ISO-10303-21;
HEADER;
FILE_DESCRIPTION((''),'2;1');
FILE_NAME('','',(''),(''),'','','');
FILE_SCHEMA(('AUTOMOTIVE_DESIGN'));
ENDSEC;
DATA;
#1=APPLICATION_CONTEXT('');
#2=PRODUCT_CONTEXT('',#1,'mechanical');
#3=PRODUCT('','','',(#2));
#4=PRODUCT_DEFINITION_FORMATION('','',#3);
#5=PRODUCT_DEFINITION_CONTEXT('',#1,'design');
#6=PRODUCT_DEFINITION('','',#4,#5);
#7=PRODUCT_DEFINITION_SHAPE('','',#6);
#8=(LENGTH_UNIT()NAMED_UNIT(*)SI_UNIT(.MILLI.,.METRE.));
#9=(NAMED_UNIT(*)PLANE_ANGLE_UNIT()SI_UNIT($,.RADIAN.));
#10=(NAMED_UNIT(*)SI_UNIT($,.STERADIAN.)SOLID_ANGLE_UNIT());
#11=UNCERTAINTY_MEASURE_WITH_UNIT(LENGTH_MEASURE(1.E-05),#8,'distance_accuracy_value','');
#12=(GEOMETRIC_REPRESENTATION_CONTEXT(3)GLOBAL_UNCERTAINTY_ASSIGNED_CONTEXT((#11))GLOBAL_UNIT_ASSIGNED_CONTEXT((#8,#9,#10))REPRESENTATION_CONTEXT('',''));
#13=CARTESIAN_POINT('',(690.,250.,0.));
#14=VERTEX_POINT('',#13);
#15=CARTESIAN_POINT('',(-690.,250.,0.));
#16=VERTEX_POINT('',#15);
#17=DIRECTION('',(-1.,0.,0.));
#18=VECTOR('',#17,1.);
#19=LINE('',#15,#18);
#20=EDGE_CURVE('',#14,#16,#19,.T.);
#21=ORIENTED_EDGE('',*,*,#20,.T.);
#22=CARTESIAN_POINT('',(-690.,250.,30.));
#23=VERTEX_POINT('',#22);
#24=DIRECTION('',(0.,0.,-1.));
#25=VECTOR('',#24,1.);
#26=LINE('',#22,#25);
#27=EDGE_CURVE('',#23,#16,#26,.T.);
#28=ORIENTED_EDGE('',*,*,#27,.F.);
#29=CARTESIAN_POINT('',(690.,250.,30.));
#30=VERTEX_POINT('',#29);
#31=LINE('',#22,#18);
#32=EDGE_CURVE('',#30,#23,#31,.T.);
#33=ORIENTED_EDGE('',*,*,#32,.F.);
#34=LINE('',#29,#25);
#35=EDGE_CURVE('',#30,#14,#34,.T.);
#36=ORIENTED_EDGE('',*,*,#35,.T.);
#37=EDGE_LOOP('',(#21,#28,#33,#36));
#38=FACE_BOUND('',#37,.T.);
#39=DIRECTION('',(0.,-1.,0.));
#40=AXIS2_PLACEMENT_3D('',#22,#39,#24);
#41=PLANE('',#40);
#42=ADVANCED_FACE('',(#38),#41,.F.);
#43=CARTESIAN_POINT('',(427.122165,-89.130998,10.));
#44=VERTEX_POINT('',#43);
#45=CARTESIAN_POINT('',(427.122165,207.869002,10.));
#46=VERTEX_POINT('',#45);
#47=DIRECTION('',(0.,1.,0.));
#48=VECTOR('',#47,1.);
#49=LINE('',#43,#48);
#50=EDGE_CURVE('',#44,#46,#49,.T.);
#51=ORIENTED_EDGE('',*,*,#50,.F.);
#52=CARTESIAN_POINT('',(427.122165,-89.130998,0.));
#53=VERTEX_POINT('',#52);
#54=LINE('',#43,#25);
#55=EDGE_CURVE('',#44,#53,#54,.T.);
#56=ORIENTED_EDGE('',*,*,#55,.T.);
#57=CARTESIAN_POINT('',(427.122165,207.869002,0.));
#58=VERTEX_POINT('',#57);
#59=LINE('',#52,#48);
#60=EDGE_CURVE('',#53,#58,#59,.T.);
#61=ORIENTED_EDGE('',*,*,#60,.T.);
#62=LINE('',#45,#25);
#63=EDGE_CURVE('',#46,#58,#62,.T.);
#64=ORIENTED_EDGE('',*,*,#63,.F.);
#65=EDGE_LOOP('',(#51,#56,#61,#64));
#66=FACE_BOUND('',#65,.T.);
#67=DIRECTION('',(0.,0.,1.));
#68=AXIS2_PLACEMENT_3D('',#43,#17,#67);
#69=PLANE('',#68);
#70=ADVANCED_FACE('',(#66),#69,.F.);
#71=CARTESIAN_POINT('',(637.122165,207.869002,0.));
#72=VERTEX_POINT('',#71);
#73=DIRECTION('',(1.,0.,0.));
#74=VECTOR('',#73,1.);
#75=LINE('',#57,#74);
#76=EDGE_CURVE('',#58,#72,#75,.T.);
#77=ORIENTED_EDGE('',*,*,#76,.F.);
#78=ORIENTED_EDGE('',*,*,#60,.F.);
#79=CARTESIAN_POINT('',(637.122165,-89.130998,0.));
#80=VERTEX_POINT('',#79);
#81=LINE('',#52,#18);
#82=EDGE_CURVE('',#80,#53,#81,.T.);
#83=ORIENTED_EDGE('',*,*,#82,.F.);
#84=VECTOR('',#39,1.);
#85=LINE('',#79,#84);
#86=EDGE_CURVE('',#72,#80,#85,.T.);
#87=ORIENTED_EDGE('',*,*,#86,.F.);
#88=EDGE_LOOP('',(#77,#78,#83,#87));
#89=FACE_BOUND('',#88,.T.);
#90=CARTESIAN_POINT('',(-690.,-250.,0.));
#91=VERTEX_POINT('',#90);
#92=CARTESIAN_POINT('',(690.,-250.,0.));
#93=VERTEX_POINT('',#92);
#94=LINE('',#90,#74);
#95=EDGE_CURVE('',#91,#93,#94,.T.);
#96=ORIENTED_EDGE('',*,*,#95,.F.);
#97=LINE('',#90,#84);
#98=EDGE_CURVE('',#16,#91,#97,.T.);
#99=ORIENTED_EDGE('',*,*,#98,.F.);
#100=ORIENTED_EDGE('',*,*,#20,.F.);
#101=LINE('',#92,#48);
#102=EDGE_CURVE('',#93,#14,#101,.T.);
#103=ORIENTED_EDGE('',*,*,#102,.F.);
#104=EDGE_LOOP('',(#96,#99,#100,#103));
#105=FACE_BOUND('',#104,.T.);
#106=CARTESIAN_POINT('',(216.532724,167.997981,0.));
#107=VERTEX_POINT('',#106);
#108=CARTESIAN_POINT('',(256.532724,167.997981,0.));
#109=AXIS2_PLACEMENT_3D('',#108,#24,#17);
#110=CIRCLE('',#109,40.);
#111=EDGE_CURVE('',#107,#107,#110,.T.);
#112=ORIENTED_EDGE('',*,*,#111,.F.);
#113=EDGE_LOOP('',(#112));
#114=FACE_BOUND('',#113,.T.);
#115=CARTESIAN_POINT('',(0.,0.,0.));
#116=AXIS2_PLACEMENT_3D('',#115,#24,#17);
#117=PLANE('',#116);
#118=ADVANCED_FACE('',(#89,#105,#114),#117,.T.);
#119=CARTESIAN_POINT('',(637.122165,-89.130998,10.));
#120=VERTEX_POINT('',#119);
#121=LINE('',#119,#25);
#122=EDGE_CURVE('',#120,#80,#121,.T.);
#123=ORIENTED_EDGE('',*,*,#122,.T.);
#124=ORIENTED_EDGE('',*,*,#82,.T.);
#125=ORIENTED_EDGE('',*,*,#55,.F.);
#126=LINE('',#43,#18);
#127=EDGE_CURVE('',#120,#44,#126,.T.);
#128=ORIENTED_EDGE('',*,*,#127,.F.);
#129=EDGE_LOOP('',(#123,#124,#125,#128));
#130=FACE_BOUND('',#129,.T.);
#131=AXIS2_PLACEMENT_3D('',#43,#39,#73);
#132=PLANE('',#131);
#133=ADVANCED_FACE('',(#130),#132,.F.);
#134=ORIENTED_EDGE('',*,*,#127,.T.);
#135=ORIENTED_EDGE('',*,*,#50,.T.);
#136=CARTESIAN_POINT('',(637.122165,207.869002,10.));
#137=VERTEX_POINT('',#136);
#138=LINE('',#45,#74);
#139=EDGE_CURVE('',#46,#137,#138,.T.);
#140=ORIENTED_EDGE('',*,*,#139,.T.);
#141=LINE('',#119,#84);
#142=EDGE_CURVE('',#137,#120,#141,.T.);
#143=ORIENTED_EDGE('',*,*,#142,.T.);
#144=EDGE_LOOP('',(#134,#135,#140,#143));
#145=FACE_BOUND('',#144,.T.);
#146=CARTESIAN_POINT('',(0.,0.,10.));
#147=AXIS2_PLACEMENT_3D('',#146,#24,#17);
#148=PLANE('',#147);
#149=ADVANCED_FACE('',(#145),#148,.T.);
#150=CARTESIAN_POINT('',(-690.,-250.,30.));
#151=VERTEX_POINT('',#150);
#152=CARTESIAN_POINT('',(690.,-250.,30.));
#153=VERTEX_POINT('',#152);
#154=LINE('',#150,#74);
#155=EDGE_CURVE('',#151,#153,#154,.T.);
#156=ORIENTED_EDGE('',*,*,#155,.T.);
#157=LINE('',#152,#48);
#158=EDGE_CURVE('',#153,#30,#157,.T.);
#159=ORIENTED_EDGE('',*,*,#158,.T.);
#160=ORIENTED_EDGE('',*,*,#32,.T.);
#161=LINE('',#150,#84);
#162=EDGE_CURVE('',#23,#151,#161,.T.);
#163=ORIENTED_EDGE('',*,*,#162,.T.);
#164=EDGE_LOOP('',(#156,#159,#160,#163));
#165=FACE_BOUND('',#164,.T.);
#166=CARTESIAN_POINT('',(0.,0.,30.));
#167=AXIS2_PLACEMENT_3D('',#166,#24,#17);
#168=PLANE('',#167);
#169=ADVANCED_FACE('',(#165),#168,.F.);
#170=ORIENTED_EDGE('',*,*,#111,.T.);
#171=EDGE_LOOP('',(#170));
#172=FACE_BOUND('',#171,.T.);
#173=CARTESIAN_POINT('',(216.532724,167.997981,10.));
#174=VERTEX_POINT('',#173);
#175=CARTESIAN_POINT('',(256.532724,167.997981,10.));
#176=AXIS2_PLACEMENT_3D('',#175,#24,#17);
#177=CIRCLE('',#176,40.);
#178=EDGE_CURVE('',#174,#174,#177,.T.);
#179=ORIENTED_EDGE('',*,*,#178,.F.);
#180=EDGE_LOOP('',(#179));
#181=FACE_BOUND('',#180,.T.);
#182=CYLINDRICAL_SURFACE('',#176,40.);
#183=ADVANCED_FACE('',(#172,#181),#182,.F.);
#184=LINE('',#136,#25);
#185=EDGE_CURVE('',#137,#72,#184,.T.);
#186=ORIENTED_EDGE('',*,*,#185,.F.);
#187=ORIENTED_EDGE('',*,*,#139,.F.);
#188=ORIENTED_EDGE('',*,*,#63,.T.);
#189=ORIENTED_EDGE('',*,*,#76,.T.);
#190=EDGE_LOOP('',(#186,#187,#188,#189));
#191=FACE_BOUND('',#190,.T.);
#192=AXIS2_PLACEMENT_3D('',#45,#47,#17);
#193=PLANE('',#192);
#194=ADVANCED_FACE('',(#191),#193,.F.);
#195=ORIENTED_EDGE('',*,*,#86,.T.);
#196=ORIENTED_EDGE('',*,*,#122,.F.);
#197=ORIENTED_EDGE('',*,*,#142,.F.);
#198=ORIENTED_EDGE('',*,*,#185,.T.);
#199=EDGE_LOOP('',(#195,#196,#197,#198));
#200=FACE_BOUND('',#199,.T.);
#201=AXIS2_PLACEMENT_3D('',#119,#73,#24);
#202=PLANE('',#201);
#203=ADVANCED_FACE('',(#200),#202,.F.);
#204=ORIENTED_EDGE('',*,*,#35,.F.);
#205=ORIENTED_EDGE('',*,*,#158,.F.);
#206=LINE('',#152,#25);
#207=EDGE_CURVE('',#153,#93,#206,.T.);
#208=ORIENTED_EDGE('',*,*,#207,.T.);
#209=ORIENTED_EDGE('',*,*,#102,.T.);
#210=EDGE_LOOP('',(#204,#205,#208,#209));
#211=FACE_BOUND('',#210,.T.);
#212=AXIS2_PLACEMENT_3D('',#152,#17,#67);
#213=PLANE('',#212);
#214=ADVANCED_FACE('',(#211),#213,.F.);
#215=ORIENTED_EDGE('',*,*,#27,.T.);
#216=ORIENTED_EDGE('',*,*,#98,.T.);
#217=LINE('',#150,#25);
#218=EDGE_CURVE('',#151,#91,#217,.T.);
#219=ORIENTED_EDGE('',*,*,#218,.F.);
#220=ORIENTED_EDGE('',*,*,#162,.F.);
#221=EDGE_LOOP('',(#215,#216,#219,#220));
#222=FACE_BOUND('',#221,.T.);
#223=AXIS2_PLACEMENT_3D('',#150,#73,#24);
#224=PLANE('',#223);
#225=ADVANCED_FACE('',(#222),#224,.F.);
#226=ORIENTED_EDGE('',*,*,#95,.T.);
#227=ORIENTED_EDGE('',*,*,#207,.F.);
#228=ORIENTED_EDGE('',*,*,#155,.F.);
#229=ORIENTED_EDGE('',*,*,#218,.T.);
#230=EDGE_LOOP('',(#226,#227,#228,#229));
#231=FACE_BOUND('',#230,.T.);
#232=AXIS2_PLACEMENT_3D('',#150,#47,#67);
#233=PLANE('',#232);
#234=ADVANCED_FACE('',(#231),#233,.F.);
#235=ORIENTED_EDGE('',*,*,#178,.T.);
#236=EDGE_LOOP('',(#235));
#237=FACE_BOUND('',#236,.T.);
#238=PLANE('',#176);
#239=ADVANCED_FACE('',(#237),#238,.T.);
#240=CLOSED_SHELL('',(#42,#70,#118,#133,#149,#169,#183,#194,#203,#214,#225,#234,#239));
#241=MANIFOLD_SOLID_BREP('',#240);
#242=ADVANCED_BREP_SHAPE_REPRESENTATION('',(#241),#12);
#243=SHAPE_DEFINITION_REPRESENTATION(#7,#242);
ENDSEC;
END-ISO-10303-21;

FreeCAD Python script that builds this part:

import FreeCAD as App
import Part
import Sketcher
Q = App.Units.Quantity


def add_polygon(sketch, points):
    """Adds a closed chain of lines whose ends are joined by coincident constraints."""
    first, n = sketch.GeometryCount, len(points)
    for a, b in zip(points, points[1:] + points[:1]):
        sketch.addGeometry(Part.LineSegment(App.Vector(*a, 0), App.Vector(*b, 0)), False)
    for i in range(n):
        sketch.addConstraint(Sketcher.Constraint("Coincident", first + i, 2, first + (i + 1) % n, 1))

doc = App.newDocument("Part")
body = doc.addObject("PartDesign::Body", "Body")

# Sketch on XY plane
sketch1 = doc.addObject("Sketcher::SketchObject", "Sketch")
body.addObject(sketch1)
sketch1.AttachmentSupport = (doc.XY_Plane, [""])
sketch1.MapMode = "FlatFace"
add_polygon(sketch1, [(-690, 250), (-690, -250), (690, -250), (690, 250)])  # lines 0-3
sketch1.addConstraint([
    Sketcher.Constraint("Vertical", 0),
    Sketcher.Constraint("Horizontal", 1),
    Sketcher.Constraint("Vertical", 2),
    Sketcher.Constraint("Horizontal", 3),
    Sketcher.Constraint("Symmetric", 0, 2, 2, 2, -1, 1),
    Sketcher.Constraint("DistanceX", 1, 1, 1, 2, Q("1380 mm")),
    Sketcher.Constraint("DistanceY", 0, 2, 0, 1, Q("500 mm")),
])
pad1 = doc.addObject("PartDesign::Pad", "Pad")
body.addObject(pad1)
pad1.Profile = sketch1
pad1.Length = 30

# Sketch on XY plane
sketch2 = doc.addObject("Sketcher::SketchObject", "Sketch001")
body.addObject(sketch2)
sketch2.AttachmentSupport = (doc.XY_Plane, [""])
sketch2.MapMode = "FlatFace"
sketch2.addGeometry(Part.Circle(App.Vector(257, 168, 0), App.Vector(0, 0, 1), 40), False)  # 0
add_polygon(sketch2, [(637, 208), (637, -89), (427, -89), (427, 208)])  # lines 1-4
sketch2.addConstraint([
    Sketcher.Constraint("Vertical", 1),
    Sketcher.Constraint("Horizontal", 2),
    Sketcher.Constraint("Vertical", 3),
    Sketcher.Constraint("Horizontal", 4),
    Sketcher.Constraint("Diameter", 0, Q("80 mm")),
    Sketcher.Constraint("DistanceX", 2, 2, 2, 1, Q("210 mm")),
    Sketcher.Constraint("DistanceY", 1, 2, 1, 1, Q("297 mm")),
    Sketcher.Constraint("DistanceY", 1, 2, -1, 1, Q("89.130998 mm")),
    Sketcher.Constraint("DistanceY", -1, 1, 0, 3, Q("167.997981 mm")),
    Sketcher.Constraint("DistanceX", 0, 3, 1, 2, Q("380.589441 mm")),
    Sketcher.Constraint("DistanceX", -1, 1, 0, 3, Q("256.532724 mm")),
])
pocket1 = doc.addObject("PartDesign::Pocket", "Pocket")
body.addObject(pocket1)
pocket1.Profile = sketch2
pocket1.Length = 10
pocket1.Reversed = True

doc.recompute()
